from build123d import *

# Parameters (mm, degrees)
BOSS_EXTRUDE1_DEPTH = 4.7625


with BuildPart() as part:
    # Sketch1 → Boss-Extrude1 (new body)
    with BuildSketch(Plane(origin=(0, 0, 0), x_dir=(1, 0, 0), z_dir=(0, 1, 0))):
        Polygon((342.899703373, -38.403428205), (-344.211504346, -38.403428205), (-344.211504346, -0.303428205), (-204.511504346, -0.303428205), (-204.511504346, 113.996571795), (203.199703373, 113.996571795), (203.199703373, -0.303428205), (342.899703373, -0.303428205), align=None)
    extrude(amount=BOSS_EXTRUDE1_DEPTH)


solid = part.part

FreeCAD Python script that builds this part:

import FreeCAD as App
import Part
import Sketcher

V = App.Vector
Q = App.Units.Quantity

doc = App.newDocument("Part")
body = doc.addObject("PartDesign::Body", "Body")

sketch1 = body.newObject("Sketcher::SketchObject", "Sketch")
sketch1.AttachmentSupport = (doc.getObject("XZ_Plane"), [""])
sketch1.MapMode = "FlatFace"
sketch1.addGeometry([
    Part.LineSegment(V(-344, 38, 0), V(343, 38, 0)),
    Part.LineSegment(V(343, 38, 0), V(343, 0, 0)),
    Part.LineSegment(V(343, 0, 0), V(203, 0, 0)),
    Part.LineSegment(V(203, 0, 0), V(203, -114, 0)),
    Part.LineSegment(V(203, -114, 0), V(-205, -114, 0)),
    Part.LineSegment(V(-205, -114, 0), V(-205, 0, 0)),
    Part.LineSegment(V(-205, 0, 0), V(-344, 0, 0)),
    Part.LineSegment(V(-344, 0, 0), V(-344, 38, 0)),
], False)
sketch1.addConstraint([
    Sketcher.Constraint("Coincident", 0, 2, 1, 1),
    Sketcher.Constraint("Coincident", 1, 2, 2, 1),
    Sketcher.Constraint("Coincident", 2, 2, 3, 1),
    Sketcher.Constraint("Coincident", 3, 2, 4, 1),
    Sketcher.Constraint("Coincident", 4, 2, 5, 1),
    Sketcher.Constraint("Coincident", 5, 2, 6, 1),
    Sketcher.Constraint("Coincident", 6, 2, 7, 1),
    Sketcher.Constraint("Coincident", 7, 2, 0, 1),
    Sketcher.Constraint("Horizontal", 0),
    Sketcher.Constraint("Vertical", 1),
    Sketcher.Constraint("Horizontal", 2),
    Sketcher.Constraint("Vertical", 3),
    Sketcher.Constraint("Horizontal", 4),
    Sketcher.Constraint("Vertical", 5),
    Sketcher.Constraint("Horizontal", 6),
    Sketcher.Constraint("Vertical", 7),
    Sketcher.Constraint("Horizontal", 2, 2, 5, 2),
    Sketcher.Constraint("Equal", 2, 6),
    Sketcher.Constraint("DistanceX", 2, 2, 2, 1, Q("5.5 in")),
    Sketcher.Constraint("DistanceY", 1, 2, 1, 1, Q("1.5 in")),
    Sketcher.Constraint("DistanceY", 3, 2, 3, 1, Q("4.5 in")),
    Sketcher.Constraint("DistanceX", 0, 1, 0, 2, 687.111208),
    Sketcher.Constraint("DistanceY", -1, 1, 0, 2, 38.403428),
    Sketcher.Constraint("DistanceX", -1, 1, 0, 2, 342.899703),
])
pad1 = body.newObject("PartDesign::Pad", "Pad")
pad1.Profile = sketch1
pad1.Length = Q("0.1875 in")
pad1.Reversed = True

doc.recompute()
